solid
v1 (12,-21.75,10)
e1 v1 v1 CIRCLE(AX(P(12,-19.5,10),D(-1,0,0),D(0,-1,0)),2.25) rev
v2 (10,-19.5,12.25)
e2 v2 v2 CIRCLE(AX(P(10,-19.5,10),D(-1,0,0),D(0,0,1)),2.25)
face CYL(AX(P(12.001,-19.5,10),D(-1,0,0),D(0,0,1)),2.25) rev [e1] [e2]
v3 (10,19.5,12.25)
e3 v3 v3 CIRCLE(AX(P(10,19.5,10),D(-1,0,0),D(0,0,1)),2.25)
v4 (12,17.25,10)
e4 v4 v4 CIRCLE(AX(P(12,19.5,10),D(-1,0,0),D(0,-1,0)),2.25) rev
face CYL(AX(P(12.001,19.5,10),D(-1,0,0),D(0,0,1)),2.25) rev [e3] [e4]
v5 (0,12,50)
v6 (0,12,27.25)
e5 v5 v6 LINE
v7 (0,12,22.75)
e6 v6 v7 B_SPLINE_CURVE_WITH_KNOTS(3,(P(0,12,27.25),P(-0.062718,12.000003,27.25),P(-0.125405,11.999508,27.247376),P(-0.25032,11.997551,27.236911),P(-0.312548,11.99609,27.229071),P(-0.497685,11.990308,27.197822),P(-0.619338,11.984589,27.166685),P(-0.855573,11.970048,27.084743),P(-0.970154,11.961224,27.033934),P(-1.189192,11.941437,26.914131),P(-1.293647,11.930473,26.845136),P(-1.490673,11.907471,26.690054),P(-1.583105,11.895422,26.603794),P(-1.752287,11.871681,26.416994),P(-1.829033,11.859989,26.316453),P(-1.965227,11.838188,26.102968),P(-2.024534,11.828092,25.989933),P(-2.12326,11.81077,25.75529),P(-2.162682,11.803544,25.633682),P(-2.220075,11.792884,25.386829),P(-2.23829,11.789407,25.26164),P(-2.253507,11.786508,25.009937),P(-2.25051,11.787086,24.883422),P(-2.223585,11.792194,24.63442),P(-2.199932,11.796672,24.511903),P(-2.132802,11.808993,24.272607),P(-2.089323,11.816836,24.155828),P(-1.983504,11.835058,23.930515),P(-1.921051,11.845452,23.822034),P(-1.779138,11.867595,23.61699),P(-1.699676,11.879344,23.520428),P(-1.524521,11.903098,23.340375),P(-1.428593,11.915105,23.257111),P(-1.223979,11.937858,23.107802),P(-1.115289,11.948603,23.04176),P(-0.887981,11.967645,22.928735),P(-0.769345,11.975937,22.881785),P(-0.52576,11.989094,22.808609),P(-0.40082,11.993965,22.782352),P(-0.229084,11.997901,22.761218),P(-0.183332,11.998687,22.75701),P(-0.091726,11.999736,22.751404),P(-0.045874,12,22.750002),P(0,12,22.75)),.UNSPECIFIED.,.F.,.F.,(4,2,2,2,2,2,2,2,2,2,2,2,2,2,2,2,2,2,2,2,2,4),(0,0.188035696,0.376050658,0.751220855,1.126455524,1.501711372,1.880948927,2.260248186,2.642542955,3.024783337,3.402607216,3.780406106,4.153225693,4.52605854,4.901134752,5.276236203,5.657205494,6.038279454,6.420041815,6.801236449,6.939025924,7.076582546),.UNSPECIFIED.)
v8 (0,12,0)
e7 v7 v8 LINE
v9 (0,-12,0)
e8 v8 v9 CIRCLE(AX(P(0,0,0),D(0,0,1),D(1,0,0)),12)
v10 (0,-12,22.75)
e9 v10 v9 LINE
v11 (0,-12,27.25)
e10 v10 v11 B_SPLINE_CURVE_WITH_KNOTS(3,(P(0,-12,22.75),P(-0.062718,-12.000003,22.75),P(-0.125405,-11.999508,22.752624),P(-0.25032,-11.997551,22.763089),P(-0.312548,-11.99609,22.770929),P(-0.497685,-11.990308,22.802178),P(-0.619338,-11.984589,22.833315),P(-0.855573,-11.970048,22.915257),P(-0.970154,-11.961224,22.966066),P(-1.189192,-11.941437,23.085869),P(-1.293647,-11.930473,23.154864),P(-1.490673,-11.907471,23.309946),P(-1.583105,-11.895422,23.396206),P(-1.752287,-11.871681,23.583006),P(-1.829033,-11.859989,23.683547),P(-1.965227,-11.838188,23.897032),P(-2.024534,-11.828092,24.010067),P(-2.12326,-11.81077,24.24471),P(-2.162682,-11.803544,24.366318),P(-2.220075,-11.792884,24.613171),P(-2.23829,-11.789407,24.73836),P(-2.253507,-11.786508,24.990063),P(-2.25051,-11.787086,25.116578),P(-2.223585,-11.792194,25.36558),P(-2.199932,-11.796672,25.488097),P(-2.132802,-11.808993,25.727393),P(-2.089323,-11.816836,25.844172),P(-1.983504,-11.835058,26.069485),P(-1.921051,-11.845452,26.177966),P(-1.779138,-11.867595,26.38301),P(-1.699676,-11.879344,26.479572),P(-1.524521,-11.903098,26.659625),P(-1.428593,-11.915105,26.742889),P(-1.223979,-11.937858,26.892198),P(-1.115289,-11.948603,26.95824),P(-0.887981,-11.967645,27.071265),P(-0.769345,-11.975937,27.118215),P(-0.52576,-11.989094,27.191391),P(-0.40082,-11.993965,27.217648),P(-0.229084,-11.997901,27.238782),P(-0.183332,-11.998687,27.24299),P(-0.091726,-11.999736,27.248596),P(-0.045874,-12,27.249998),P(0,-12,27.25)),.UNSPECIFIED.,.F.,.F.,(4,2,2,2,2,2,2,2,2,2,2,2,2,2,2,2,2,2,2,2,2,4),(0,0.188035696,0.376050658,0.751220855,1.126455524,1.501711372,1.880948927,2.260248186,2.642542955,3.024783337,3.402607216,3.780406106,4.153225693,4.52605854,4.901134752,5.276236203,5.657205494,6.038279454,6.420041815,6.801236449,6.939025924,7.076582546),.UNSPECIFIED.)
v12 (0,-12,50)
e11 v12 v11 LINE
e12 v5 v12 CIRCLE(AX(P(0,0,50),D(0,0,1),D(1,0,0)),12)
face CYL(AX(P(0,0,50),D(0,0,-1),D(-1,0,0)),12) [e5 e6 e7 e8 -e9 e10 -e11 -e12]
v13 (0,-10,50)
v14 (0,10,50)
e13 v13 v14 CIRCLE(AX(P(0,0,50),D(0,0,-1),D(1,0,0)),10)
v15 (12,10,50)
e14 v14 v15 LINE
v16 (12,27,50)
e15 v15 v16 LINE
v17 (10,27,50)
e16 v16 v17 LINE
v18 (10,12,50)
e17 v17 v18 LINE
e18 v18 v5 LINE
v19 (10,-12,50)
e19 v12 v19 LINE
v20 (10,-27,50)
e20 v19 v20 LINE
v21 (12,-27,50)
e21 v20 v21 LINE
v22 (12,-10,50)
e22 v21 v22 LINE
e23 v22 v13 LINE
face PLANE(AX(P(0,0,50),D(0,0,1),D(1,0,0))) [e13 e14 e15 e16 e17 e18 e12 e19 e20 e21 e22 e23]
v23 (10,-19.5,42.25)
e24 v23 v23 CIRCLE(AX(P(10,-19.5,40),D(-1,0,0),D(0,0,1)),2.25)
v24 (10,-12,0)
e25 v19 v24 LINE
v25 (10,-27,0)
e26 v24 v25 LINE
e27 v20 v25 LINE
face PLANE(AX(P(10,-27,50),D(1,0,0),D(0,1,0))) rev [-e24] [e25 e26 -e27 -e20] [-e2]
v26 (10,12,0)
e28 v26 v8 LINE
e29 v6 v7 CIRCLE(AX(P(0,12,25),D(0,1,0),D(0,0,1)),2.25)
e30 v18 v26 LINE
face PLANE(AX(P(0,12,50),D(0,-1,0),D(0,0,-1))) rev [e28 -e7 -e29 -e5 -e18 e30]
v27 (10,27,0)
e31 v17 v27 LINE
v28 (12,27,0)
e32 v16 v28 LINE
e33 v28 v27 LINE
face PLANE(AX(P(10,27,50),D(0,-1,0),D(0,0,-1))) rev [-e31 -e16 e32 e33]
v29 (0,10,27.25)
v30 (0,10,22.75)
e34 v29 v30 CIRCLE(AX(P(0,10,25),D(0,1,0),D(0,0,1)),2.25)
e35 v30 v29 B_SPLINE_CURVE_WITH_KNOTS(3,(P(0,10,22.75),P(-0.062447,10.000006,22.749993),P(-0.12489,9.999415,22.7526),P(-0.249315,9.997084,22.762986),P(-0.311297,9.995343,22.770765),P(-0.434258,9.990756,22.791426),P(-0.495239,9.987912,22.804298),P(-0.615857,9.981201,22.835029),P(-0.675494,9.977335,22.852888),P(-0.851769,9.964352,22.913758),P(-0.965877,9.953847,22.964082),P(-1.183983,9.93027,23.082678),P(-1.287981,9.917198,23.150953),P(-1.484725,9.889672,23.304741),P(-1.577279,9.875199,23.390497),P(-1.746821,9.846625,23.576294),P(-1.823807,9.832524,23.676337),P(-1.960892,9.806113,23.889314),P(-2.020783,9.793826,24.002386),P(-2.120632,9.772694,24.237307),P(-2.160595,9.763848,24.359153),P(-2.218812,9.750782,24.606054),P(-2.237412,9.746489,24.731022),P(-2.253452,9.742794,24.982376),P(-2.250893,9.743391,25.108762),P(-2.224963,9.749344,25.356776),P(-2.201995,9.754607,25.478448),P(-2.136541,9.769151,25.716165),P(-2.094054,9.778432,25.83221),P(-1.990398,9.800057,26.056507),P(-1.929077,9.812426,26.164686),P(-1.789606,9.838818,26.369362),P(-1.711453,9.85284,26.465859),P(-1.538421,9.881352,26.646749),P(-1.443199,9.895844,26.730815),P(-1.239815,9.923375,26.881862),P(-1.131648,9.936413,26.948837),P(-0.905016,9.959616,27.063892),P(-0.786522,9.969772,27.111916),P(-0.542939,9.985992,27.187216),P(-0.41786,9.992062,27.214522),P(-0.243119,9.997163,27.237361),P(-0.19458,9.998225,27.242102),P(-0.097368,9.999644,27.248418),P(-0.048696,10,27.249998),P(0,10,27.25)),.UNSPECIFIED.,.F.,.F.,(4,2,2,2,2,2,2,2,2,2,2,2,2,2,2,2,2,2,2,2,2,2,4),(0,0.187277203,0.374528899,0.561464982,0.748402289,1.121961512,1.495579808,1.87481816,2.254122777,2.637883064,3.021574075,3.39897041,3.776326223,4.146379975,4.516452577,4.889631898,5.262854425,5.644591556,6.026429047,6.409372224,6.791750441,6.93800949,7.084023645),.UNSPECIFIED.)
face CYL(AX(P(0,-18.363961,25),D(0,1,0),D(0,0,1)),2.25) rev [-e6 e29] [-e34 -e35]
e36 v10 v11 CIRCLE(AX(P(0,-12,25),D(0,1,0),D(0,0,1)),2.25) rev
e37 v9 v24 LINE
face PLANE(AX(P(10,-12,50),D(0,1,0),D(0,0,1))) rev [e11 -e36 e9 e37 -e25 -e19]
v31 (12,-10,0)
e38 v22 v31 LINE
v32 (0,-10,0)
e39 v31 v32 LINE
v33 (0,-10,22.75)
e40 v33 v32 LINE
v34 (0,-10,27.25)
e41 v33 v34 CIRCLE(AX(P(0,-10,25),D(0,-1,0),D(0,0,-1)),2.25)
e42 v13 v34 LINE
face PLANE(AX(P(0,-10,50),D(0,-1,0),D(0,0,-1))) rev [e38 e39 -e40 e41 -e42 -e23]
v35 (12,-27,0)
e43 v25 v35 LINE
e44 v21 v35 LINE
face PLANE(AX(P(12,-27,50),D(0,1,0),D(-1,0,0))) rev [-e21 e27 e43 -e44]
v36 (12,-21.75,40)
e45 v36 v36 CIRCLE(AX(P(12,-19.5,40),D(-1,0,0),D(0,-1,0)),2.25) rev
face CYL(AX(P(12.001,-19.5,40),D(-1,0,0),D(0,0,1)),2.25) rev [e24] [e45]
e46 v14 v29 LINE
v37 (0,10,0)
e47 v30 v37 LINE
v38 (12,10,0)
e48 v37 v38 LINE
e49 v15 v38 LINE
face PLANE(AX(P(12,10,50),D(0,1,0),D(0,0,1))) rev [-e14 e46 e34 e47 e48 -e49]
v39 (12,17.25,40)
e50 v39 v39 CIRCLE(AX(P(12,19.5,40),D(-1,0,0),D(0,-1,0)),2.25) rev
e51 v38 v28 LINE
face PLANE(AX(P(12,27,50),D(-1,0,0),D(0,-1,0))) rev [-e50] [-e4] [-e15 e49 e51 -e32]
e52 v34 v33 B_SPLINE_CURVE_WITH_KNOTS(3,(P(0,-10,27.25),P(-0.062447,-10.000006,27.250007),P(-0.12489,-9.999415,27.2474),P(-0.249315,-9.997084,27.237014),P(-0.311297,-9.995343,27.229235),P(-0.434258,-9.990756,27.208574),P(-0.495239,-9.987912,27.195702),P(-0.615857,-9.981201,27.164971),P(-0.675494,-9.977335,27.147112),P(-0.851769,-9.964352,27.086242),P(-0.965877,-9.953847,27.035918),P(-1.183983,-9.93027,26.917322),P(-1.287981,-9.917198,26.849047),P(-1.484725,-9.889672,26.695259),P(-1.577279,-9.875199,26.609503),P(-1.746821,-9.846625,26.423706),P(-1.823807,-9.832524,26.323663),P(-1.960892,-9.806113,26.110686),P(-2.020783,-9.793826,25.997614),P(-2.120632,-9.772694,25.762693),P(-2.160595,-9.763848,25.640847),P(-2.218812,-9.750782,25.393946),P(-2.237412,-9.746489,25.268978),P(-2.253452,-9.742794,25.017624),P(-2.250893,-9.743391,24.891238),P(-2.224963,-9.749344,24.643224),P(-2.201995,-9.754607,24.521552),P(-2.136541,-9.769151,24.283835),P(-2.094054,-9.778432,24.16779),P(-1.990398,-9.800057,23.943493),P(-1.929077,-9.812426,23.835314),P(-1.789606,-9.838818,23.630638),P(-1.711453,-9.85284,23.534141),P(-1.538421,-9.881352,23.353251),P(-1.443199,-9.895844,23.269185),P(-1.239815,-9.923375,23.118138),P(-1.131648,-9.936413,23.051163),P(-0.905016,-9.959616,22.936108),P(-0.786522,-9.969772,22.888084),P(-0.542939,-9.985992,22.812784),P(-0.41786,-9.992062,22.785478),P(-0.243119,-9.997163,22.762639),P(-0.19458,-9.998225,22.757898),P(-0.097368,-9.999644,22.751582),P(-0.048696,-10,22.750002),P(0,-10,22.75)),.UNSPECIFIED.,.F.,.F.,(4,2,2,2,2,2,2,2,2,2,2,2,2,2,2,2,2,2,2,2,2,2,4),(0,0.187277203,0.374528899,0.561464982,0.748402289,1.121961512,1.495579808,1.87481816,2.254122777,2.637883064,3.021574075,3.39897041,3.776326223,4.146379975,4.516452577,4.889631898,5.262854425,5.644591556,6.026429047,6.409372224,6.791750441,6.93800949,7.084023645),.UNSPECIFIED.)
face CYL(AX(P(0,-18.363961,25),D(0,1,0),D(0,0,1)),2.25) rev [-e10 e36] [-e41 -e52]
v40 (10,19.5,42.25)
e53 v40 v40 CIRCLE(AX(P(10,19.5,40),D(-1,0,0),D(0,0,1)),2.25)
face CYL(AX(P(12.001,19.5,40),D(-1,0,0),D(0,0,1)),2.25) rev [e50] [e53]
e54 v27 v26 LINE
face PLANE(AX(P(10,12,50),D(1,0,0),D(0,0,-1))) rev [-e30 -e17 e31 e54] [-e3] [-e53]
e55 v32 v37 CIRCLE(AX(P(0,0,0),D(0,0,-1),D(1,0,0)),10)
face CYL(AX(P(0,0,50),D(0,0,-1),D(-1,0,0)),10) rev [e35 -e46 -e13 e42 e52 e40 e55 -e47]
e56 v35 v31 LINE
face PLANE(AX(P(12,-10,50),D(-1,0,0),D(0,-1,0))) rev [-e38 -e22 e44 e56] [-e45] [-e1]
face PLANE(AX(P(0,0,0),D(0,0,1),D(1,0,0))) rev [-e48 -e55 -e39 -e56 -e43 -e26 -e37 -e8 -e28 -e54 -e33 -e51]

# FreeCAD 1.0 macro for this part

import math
import FreeCAD as App
import Part
import Sketcher
Q = App.Units.Quantity

doc = App.newDocument("Part")
params = doc.addObject("Spreadsheet::Sheet", "Params")
for row, (alias, value) in enumerate([
    ("sketch1_radius", "12 mm"),
    ("sketch1_radius2", "10 mm"),
    ("sketch1_width", "10 mm"),
    ("sketch1_width2", "2 mm"),
    ("sketch1_height", "15 mm"),
    ("pad1_length", "50 mm"),
    ("sketch2_diameter", "4.5 mm"),
    ("pocket1_length", "24 mm"),
    ("sketch3_diameter", "4.5 mm"),
    ("sketch4_diameter", "4.5 mm"),
    ("sketch5_diameter", "4.5 mm"),
    ("sketch6_diameter", "4.5 mm"),
], start=1):
    params.set(f"A{row}", alias)
    params.set(f"B{row}", "=" + value)
    params.setAlias(f"B{row}", alias)

body = doc.addObject("PartDesign::Body", "Body")

sketch1 = doc.addObject("Sketcher::SketchObject", "Sketch")
body.addObject(sketch1)
sketch1.AttachmentSupport = (doc.XY_Plane, [""])
sketch1.MapMode = "FlatFace"
sketch1.addGeometry([
    Part.LineSegment(App.Vector(10, 12, 0), App.Vector(0, 12, 0)),
    Part.ArcOfCircle(Part.Circle(App.Vector(0, 0, 0), App.Vector(0, 0, 1), 12), math.radians(90), math.radians(270)),
    Part.LineSegment(App.Vector(0, -12, 0), App.Vector(10, -12, 0)),
    Part.LineSegment(App.Vector(10, -12, 0), App.Vector(10, -27, 0)),
    Part.LineSegment(App.Vector(10, -27, 0), App.Vector(12, -27, 0)),
    Part.LineSegment(App.Vector(12, -27, 0), App.Vector(12, -10, 0)),
    Part.LineSegment(App.Vector(12, -10, 0), App.Vector(0, -10, 0)),
    Part.ArcOfCircle(Part.Circle(App.Vector(0, 0, 0), App.Vector(0, 0, 1), 10), math.radians(90), math.radians(270)),
    Part.LineSegment(App.Vector(0, 10, 0), App.Vector(12, 10, 0)),
    Part.LineSegment(App.Vector(12, 10, 0), App.Vector(12, 27, 0)),
    Part.LineSegment(App.Vector(12, 27, 0), App.Vector(10, 27, 0)),
    Part.LineSegment(App.Vector(10, 27, 0), App.Vector(10, 12, 0)),
], False)
sketch1.addConstraint([
    Sketcher.Constraint("Tangent", 0, 2, 1, 1),
    Sketcher.Constraint("Tangent", 1, 2, 2, 1),
    Sketcher.Constraint("Coincident", 2, 2, 3, 1),
    Sketcher.Constraint("Coincident", 3, 2, 4, 1),
    Sketcher.Constraint("Coincident", 4, 2, 5, 1),
    Sketcher.Constraint("Coincident", 5, 2, 6, 1),
    Sketcher.Constraint("Tangent", 6, 2, 7, 2),
    Sketcher.Constraint("Tangent", 7, 1, 8, 1),
    Sketcher.Constraint("Coincident", 8, 2, 9, 1),
    Sketcher.Constraint("Coincident", 9, 2, 10, 1),
    Sketcher.Constraint("Coincident", 10, 2, 11, 1),
    Sketcher.Constraint("Coincident", 11, 2, 0, 1),
    Sketcher.Constraint("Horizontal", 0),
    Sketcher.Constraint("Horizontal", 2),
    Sketcher.Constraint("Vertical", 3),
    Sketcher.Constraint("Horizontal", 4),
    Sketcher.Constraint("Vertical", 5),
    Sketcher.Constraint("Horizontal", 6),
    Sketcher.Constraint("Horizontal", 8),
    Sketcher.Constraint("Vertical", 9),
    Sketcher.Constraint("Horizontal", 10),
    Sketcher.Constraint("Vertical", 11),
    Sketcher.Constraint("Coincident", 1, 3, -1, 1),
    Sketcher.Constraint("Coincident", 7, 3, -1, 1),
    Sketcher.Constraint("Symmetric", 4, 2, 9, 2, -1),
    Sketcher.Constraint("Vertical", 3, 2, 10, 2),
    Sketcher.Constraint("Radius", 1, Q("12 mm")),
    Sketcher.Constraint("Radius", 7, Q("10 mm")),
    Sketcher.Constraint("DistanceX", 0, 2, 0, 1, Q("10 mm")),
    Sketcher.Constraint("DistanceX", 4, 1, 4, 2, Q("2 mm")),
    Sketcher.Constraint("DistanceY", 3, 2, 3, 1, Q("15 mm")),
])
sketch1.setExpression("Constraints[26]", "Params.sketch1_radius")
sketch1.setExpression("Constraints[27]", "Params.sketch1_radius2")
sketch1.setExpression("Constraints[28]", "Params.sketch1_width")
sketch1.setExpression("Constraints[29]", "Params.sketch1_width2")
sketch1.setExpression("Constraints[30]", "Params.sketch1_height")
pad1 = doc.addObject("PartDesign::Pad", "Pad")
body.addObject(pad1)
pad1.Profile = sketch1
pad1.setExpression("Length", "Params.pad1_length")

sketch2 = doc.addObject("Sketcher::SketchObject", "Sketch001")
body.addObject(sketch2)
sketch2.AttachmentSupport = (doc.XZ_Plane, [""])
sketch2.MapMode = "FlatFace"
sketch2.AttachmentOffset = App.Placement(App.Vector(0, 0, -12), App.Rotation())
sketch2.addGeometry(Part.Circle(App.Vector(0, 25, 0), App.Vector(0, 0, 1), 2.25), False)
sketch2.addConstraint([
    Sketcher.Constraint("PointOnObject", 0, 3, -2),
    Sketcher.Constraint("Diameter", 0, Q("4.5 mm")),
    Sketcher.Constraint("DistanceY", -1, 1, 0, 3, Q("25 mm")),
])
sketch2.setExpression("Constraints[1]", "Params.sketch2_diameter")
pocket1 = doc.addObject("PartDesign::Pocket", "Pocket")
body.addObject(pocket1)
pocket1.Profile = sketch2
pocket1.setExpression("Length", "Params.pocket1_length")
pocket1.Reversed = True

sketch3 = doc.addObject("Sketcher::SketchObject", "Sketch002")
body.addObject(sketch3)
sketch3.AttachmentSupport = (doc.YZ_Plane, [""])
sketch3.MapMode = "FlatFace"
sketch3.AttachmentOffset = App.Placement(App.Vector(0, 0, 10), App.Rotation())
sketch3.addGeometry(Part.Circle(App.Vector(19.5, 10, 0), App.Vector(0, 0, 1), 2.25), False)
sketch3.addConstraint([
    Sketcher.Constraint("Diameter", 0, Q("4.5 mm")),
    Sketcher.Constraint("DistanceY", -1, 1, 0, 3, Q("10 mm")),
    Sketcher.Constraint("DistanceX", -1, 1, 0, 3, Q("19.5 mm")),
])
sketch3.setExpression("Constraints[0]", "Params.sketch3_diameter")
pocket2 = doc.addObject("PartDesign::Pocket", "Pocket001")
body.addObject(pocket2)
pocket2.Profile = sketch3
pocket2.Type = "UpToFirst"
pocket2.Reversed = True

sketch4 = doc.addObject("Sketcher::SketchObject", "Sketch003")
body.addObject(sketch4)
sketch4.AttachmentSupport = (doc.YZ_Plane, [""])
sketch4.MapMode = "FlatFace"
sketch4.AttachmentOffset = App.Placement(App.Vector(0, 0, 10), App.Rotation())
sketch4.addGeometry(Part.Circle(App.Vector(19.5, 40, 0), App.Vector(0, 0, 1), 2.25), False)
sketch4.addConstraint([
    Sketcher.Constraint("Diameter", 0, Q("4.5 mm")),
    Sketcher.Constraint("DistanceY", -1, 1, 0, 3, Q("40 mm")),
    Sketcher.Constraint("DistanceX", -1, 1, 0, 3, Q("19.5 mm")),
])
sketch4.setExpression("Constraints[0]", "Params.sketch4_diameter")
pocket3 = doc.addObject("PartDesign::Pocket", "Pocket002")
body.addObject(pocket3)
pocket3.Profile = sketch4
pocket3.Type = "UpToFirst"
pocket3.Reversed = True

sketch5 = doc.addObject("Sketcher::SketchObject", "Sketch004")
body.addObject(sketch5)
sketch5.AttachmentSupport = (doc.YZ_Plane, [""])
sketch5.MapMode = "FlatFace"
sketch5.AttachmentOffset = App.Placement(App.Vector(0, 0, 10), App.Rotation())
sketch5.addGeometry(Part.Circle(App.Vector(-19.5, 40, 0), App.Vector(0, 0, 1), 2.25), False)
sketch5.addConstraint([
    Sketcher.Constraint("Diameter", 0, Q("4.5 mm")),
    Sketcher.Constraint("DistanceY", -1, 1, 0, 3, Q("40 mm")),
    Sketcher.Constraint("DistanceX", 0, 3, -1, 1, Q("19.5 mm")),
])
sketch5.setExpression("Constraints[0]", "Params.sketch5_diameter")
pocket4 = doc.addObject("PartDesign::Pocket", "Pocket003")
body.addObject(pocket4)
pocket4.Profile = sketch5
pocket4.Type = "UpToFirst"
pocket4.Reversed = True

sketch6 = doc.addObject("Sketcher::SketchObject", "Sketch005")
body.addObject(sketch6)
sketch6.AttachmentSupport = (doc.YZ_Plane, [""])
sketch6.MapMode = "FlatFace"
sketch6.AttachmentOffset = App.Placement(App.Vector(0, 0, 10), App.Rotation())
sketch6.addGeometry(Part.Circle(App.Vector(-19.5, 10, 0), App.Vector(0, 0, 1), 2.25), False)
sketch6.addConstraint([
    Sketcher.Constraint("Diameter", 0, Q("4.5 mm")),
    Sketcher.Constraint("DistanceY", -1, 1, 0, 3, Q("10 mm")),
    Sketcher.Constraint("DistanceX", 0, 3, -1, 1, Q("19.5 mm")),
])
sketch6.setExpression("Constraints[0]", "Params.sketch6_diameter")
pocket5 = doc.addObject("PartDesign::Pocket", "Pocket004")
body.addObject(pocket5)
pocket5.Profile = sketch6
pocket5.Type = "UpToFirst"
pocket5.Reversed = True

doc.recompute()
